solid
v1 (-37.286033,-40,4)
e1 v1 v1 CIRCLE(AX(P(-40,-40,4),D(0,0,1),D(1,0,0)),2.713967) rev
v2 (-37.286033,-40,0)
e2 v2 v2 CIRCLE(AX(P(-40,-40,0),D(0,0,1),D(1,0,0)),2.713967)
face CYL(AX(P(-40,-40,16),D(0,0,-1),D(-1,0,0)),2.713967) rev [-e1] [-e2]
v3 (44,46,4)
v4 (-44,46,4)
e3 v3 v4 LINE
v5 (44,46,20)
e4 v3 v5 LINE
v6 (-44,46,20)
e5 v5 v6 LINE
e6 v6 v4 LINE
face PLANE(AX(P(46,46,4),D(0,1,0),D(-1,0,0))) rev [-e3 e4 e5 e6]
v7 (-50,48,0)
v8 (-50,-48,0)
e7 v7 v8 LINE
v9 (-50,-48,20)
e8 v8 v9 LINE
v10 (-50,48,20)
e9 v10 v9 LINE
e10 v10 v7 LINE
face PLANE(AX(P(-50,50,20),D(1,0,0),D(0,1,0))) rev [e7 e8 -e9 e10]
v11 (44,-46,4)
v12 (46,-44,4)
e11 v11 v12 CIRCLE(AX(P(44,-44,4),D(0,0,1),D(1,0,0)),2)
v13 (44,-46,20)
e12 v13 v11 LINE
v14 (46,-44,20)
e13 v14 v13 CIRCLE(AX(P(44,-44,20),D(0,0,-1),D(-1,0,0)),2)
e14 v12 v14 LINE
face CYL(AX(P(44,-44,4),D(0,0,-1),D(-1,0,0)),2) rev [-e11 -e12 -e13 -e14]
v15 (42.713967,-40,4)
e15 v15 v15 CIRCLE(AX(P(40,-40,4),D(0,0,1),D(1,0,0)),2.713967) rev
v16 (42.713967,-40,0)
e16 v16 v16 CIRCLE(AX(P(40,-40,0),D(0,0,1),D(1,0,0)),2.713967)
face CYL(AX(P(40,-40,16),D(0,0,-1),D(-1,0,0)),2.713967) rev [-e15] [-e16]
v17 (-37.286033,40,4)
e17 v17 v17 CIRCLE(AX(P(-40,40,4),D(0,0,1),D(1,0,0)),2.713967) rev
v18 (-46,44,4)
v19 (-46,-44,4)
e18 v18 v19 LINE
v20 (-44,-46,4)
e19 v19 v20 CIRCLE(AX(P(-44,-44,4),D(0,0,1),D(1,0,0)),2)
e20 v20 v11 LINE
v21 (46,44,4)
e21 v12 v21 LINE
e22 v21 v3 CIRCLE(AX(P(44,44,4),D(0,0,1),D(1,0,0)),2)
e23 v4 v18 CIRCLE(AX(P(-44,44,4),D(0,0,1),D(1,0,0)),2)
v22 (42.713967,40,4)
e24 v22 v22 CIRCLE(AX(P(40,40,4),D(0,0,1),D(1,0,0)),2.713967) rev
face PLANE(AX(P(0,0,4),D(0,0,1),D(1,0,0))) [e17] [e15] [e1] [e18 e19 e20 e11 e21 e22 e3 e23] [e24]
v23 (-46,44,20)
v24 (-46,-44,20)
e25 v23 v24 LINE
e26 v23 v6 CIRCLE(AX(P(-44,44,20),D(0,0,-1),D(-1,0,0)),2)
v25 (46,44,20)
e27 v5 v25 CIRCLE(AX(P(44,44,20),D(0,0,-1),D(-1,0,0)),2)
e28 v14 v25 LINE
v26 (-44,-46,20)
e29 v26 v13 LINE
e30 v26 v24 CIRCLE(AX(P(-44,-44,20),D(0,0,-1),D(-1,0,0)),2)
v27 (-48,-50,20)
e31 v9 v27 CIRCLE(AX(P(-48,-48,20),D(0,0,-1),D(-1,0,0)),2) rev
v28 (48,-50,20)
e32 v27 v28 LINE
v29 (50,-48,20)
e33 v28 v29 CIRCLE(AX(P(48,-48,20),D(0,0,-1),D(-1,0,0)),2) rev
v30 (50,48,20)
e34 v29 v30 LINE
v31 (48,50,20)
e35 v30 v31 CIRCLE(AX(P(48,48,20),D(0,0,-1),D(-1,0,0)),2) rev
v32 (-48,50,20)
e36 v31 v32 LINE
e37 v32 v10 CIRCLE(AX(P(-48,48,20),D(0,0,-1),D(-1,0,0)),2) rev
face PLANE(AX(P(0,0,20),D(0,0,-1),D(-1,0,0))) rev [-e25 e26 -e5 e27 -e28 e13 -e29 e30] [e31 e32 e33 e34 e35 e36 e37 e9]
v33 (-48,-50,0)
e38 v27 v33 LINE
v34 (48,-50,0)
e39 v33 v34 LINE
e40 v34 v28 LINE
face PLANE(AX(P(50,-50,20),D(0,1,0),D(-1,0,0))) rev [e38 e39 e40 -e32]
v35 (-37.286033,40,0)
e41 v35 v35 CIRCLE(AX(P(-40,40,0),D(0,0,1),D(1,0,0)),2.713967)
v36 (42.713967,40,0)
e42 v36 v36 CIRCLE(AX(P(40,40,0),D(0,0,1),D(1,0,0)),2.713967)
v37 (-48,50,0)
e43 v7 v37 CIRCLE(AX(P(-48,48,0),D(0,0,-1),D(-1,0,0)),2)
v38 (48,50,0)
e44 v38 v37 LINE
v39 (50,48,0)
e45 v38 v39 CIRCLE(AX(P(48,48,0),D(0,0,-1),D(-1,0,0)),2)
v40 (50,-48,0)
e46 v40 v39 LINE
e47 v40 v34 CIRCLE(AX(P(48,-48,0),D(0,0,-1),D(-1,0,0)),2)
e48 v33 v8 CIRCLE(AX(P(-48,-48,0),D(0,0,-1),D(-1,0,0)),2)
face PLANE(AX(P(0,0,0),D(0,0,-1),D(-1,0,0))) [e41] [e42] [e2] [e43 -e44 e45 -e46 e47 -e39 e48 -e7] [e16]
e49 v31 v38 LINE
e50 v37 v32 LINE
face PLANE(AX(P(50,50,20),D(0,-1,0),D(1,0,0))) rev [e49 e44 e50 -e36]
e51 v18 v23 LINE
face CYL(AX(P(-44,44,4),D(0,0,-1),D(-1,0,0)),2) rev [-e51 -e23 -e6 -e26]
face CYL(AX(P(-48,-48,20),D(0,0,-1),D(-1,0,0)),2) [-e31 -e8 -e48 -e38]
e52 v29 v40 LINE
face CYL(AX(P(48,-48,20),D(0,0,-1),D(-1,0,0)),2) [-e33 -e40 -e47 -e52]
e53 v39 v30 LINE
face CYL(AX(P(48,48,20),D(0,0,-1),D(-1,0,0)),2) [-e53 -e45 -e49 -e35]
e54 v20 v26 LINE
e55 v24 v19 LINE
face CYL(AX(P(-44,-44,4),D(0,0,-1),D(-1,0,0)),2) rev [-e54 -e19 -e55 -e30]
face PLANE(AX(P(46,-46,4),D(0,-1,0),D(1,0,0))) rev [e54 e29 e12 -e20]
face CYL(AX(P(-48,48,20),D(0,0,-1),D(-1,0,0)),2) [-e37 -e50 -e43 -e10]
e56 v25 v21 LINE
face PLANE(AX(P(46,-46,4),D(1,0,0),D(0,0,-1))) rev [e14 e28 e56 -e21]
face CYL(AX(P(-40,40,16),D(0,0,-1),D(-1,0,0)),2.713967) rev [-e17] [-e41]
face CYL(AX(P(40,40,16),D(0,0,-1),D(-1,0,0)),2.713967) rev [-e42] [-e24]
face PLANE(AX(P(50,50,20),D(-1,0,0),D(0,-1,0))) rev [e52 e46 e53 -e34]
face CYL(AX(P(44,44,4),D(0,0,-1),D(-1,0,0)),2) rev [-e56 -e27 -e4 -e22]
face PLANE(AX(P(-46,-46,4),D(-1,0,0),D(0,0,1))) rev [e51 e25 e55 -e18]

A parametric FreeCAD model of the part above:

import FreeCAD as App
import Part
import Sketcher

V = App.Vector


def edges_at(feature, points):
    """Names of the edges that pass closest to the given points."""
    edges = feature.Shape.Edges
    near = lambda p: min(range(len(edges)), key=lambda i: edges[i].distToShape(Part.Vertex(*p))[0])
    return sorted({f"Edge{near(p) + 1}" for p in points})

doc = App.newDocument("Part")
body = doc.addObject("PartDesign::Body", "Body")

# Sketch on XY plane
sketch1 = doc.addObject("Sketcher::SketchObject", "Sketch")
body.addObject(sketch1)
sketch1.AttachmentSupport = (doc.XY_Plane, [""])
sketch1.MapMode = "FlatFace"
sketch1.addGeometry([
    Part.LineSegment(V(-50, 50, 0), V(-50, -50, 0)),
    Part.LineSegment(V(-50, -50, 0), V(50, -50, 0)),
    Part.LineSegment(V(50, -50, 0), V(50, 50, 0)),
    Part.LineSegment(V(50, 50, 0), V(-50, 50, 0)),
], False)
sketch1.addConstraint([
    Sketcher.Constraint("Coincident", 0, 2, 1, 1),
    Sketcher.Constraint("Coincident", 1, 2, 2, 1),
    Sketcher.Constraint("Coincident", 2, 2, 3, 1),
    Sketcher.Constraint("Coincident", 3, 2, 0, 1),
    Sketcher.Constraint("Vertical", 0),
    Sketcher.Constraint("Horizontal", 1),
    Sketcher.Constraint("Vertical", 2),
    Sketcher.Constraint("Horizontal", 3),
    Sketcher.Constraint("Symmetric", 0, 2, 2, 2, -1, 1),
    Sketcher.Constraint("Equal", 3, 0),
    Sketcher.Constraint("DistanceX", 1, 1, 1, 2, 100.0),
])
pad1 = doc.addObject("PartDesign::Pad", "Pad")
body.addObject(pad1)
pad1.Profile = sketch1
pad1.Length = 20

# Sketch on XY plane
sketch2 = doc.addObject("Sketcher::SketchObject", "Sketch001")
body.addObject(sketch2)
sketch2.AttachmentSupport = (doc.XY_Plane, [""])
sketch2.MapMode = "FlatFace"
sketch2.AttachmentOffset = App.Placement(V(0, 0, 20), App.Rotation())
sketch2.addGeometry([
    Part.LineSegment(V(-46, 46, 0), V(-46, -46, 0)),
    Part.LineSegment(V(-46, -46, 0), V(46, -46, 0)),
    Part.LineSegment(V(46, -46, 0), V(46, 46, 0)),
    Part.LineSegment(V(46, 46, 0), V(-46, 46, 0)),
], False)
sketch2.addConstraint([
    Sketcher.Constraint("Coincident", 0, 2, 1, 1),
    Sketcher.Constraint("Coincident", 1, 2, 2, 1),
    Sketcher.Constraint("Coincident", 2, 2, 3, 1),
    Sketcher.Constraint("Coincident", 3, 2, 0, 1),
    Sketcher.Constraint("Vertical", 0),
    Sketcher.Constraint("Horizontal", 1),
    Sketcher.Constraint("Vertical", 2),
    Sketcher.Constraint("Horizontal", 3),
    Sketcher.Constraint("Symmetric", 0, 2, 2, 2, -1, 1),
    Sketcher.Constraint("Equal", 3, 0),
    Sketcher.Constraint("DistanceX", 1, 1, 1, 2, 92.0),
])
pocket1 = doc.addObject("PartDesign::Pocket", "Pocket")
body.addObject(pocket1)
pocket1.Profile = sketch2
pocket1.Length = 16
doc.recompute()

fillet = doc.addObject("PartDesign::Fillet", "Fillet")
body.addObject(fillet)
fillet.Base = (pocket1, edges_at(pocket1, [
    (-46, -46, 12),
    (-46, 46, 12),
    (46, 46, 12),
    (46, -46, 12),
    (-50, 50, 10),
    (50, 50, 10),
    (50, -50, 10),
    (-50, -50, 10),
]))
fillet.Radius = 2

# Sketch on XY plane
sketch3 = doc.addObject("Sketcher::SketchObject", "Sketch002")
body.addObject(sketch3)
sketch3.AttachmentSupport = (doc.XY_Plane, [""])
sketch3.MapMode = "FlatFace"
sketch3.addGeometry([
    Part.Circle(V(-40, 40, 0), V(0, 0, 1), 2.713967),
    Part.Circle(V(40, 40, 0), V(0, 0, 1), 2.713967),
    Part.Circle(V(40, -40, 0), V(0, 0, 1), 2.713967),
    Part.Circle(V(-40, -40, 0), V(0, 0, 1), 2.713967),
], False)
sketch3.addConstraint([
    Sketcher.Constraint("Equal", 0, 1),
    Sketcher.Constraint("Equal", 1, 2),
    Sketcher.Constraint("Equal", 2, 3),
    Sketcher.Constraint("Symmetric", 0, 3, 2, 3, -1, 1),
    Sketcher.Constraint("Symmetric", 1, 3, 3, 3, -1, 1),
    Sketcher.Constraint("Symmetric", 0, 3, 1, 3, -2),
    Sketcher.Constraint("DistanceX", 0, 3, -1, 1, 40.0),
    Sketcher.Constraint("DistanceY", -1, 1, 0, 3, 40.0),
    Sketcher.Constraint("Diameter", 0, 5.427934),
])
pocket2 = doc.addObject("PartDesign::Pocket", "Pocket001")
body.addObject(pocket2)
pocket2.Profile = sketch3
pocket2.Length = 16
pocket2.Reversed = True

doc.recompute()
